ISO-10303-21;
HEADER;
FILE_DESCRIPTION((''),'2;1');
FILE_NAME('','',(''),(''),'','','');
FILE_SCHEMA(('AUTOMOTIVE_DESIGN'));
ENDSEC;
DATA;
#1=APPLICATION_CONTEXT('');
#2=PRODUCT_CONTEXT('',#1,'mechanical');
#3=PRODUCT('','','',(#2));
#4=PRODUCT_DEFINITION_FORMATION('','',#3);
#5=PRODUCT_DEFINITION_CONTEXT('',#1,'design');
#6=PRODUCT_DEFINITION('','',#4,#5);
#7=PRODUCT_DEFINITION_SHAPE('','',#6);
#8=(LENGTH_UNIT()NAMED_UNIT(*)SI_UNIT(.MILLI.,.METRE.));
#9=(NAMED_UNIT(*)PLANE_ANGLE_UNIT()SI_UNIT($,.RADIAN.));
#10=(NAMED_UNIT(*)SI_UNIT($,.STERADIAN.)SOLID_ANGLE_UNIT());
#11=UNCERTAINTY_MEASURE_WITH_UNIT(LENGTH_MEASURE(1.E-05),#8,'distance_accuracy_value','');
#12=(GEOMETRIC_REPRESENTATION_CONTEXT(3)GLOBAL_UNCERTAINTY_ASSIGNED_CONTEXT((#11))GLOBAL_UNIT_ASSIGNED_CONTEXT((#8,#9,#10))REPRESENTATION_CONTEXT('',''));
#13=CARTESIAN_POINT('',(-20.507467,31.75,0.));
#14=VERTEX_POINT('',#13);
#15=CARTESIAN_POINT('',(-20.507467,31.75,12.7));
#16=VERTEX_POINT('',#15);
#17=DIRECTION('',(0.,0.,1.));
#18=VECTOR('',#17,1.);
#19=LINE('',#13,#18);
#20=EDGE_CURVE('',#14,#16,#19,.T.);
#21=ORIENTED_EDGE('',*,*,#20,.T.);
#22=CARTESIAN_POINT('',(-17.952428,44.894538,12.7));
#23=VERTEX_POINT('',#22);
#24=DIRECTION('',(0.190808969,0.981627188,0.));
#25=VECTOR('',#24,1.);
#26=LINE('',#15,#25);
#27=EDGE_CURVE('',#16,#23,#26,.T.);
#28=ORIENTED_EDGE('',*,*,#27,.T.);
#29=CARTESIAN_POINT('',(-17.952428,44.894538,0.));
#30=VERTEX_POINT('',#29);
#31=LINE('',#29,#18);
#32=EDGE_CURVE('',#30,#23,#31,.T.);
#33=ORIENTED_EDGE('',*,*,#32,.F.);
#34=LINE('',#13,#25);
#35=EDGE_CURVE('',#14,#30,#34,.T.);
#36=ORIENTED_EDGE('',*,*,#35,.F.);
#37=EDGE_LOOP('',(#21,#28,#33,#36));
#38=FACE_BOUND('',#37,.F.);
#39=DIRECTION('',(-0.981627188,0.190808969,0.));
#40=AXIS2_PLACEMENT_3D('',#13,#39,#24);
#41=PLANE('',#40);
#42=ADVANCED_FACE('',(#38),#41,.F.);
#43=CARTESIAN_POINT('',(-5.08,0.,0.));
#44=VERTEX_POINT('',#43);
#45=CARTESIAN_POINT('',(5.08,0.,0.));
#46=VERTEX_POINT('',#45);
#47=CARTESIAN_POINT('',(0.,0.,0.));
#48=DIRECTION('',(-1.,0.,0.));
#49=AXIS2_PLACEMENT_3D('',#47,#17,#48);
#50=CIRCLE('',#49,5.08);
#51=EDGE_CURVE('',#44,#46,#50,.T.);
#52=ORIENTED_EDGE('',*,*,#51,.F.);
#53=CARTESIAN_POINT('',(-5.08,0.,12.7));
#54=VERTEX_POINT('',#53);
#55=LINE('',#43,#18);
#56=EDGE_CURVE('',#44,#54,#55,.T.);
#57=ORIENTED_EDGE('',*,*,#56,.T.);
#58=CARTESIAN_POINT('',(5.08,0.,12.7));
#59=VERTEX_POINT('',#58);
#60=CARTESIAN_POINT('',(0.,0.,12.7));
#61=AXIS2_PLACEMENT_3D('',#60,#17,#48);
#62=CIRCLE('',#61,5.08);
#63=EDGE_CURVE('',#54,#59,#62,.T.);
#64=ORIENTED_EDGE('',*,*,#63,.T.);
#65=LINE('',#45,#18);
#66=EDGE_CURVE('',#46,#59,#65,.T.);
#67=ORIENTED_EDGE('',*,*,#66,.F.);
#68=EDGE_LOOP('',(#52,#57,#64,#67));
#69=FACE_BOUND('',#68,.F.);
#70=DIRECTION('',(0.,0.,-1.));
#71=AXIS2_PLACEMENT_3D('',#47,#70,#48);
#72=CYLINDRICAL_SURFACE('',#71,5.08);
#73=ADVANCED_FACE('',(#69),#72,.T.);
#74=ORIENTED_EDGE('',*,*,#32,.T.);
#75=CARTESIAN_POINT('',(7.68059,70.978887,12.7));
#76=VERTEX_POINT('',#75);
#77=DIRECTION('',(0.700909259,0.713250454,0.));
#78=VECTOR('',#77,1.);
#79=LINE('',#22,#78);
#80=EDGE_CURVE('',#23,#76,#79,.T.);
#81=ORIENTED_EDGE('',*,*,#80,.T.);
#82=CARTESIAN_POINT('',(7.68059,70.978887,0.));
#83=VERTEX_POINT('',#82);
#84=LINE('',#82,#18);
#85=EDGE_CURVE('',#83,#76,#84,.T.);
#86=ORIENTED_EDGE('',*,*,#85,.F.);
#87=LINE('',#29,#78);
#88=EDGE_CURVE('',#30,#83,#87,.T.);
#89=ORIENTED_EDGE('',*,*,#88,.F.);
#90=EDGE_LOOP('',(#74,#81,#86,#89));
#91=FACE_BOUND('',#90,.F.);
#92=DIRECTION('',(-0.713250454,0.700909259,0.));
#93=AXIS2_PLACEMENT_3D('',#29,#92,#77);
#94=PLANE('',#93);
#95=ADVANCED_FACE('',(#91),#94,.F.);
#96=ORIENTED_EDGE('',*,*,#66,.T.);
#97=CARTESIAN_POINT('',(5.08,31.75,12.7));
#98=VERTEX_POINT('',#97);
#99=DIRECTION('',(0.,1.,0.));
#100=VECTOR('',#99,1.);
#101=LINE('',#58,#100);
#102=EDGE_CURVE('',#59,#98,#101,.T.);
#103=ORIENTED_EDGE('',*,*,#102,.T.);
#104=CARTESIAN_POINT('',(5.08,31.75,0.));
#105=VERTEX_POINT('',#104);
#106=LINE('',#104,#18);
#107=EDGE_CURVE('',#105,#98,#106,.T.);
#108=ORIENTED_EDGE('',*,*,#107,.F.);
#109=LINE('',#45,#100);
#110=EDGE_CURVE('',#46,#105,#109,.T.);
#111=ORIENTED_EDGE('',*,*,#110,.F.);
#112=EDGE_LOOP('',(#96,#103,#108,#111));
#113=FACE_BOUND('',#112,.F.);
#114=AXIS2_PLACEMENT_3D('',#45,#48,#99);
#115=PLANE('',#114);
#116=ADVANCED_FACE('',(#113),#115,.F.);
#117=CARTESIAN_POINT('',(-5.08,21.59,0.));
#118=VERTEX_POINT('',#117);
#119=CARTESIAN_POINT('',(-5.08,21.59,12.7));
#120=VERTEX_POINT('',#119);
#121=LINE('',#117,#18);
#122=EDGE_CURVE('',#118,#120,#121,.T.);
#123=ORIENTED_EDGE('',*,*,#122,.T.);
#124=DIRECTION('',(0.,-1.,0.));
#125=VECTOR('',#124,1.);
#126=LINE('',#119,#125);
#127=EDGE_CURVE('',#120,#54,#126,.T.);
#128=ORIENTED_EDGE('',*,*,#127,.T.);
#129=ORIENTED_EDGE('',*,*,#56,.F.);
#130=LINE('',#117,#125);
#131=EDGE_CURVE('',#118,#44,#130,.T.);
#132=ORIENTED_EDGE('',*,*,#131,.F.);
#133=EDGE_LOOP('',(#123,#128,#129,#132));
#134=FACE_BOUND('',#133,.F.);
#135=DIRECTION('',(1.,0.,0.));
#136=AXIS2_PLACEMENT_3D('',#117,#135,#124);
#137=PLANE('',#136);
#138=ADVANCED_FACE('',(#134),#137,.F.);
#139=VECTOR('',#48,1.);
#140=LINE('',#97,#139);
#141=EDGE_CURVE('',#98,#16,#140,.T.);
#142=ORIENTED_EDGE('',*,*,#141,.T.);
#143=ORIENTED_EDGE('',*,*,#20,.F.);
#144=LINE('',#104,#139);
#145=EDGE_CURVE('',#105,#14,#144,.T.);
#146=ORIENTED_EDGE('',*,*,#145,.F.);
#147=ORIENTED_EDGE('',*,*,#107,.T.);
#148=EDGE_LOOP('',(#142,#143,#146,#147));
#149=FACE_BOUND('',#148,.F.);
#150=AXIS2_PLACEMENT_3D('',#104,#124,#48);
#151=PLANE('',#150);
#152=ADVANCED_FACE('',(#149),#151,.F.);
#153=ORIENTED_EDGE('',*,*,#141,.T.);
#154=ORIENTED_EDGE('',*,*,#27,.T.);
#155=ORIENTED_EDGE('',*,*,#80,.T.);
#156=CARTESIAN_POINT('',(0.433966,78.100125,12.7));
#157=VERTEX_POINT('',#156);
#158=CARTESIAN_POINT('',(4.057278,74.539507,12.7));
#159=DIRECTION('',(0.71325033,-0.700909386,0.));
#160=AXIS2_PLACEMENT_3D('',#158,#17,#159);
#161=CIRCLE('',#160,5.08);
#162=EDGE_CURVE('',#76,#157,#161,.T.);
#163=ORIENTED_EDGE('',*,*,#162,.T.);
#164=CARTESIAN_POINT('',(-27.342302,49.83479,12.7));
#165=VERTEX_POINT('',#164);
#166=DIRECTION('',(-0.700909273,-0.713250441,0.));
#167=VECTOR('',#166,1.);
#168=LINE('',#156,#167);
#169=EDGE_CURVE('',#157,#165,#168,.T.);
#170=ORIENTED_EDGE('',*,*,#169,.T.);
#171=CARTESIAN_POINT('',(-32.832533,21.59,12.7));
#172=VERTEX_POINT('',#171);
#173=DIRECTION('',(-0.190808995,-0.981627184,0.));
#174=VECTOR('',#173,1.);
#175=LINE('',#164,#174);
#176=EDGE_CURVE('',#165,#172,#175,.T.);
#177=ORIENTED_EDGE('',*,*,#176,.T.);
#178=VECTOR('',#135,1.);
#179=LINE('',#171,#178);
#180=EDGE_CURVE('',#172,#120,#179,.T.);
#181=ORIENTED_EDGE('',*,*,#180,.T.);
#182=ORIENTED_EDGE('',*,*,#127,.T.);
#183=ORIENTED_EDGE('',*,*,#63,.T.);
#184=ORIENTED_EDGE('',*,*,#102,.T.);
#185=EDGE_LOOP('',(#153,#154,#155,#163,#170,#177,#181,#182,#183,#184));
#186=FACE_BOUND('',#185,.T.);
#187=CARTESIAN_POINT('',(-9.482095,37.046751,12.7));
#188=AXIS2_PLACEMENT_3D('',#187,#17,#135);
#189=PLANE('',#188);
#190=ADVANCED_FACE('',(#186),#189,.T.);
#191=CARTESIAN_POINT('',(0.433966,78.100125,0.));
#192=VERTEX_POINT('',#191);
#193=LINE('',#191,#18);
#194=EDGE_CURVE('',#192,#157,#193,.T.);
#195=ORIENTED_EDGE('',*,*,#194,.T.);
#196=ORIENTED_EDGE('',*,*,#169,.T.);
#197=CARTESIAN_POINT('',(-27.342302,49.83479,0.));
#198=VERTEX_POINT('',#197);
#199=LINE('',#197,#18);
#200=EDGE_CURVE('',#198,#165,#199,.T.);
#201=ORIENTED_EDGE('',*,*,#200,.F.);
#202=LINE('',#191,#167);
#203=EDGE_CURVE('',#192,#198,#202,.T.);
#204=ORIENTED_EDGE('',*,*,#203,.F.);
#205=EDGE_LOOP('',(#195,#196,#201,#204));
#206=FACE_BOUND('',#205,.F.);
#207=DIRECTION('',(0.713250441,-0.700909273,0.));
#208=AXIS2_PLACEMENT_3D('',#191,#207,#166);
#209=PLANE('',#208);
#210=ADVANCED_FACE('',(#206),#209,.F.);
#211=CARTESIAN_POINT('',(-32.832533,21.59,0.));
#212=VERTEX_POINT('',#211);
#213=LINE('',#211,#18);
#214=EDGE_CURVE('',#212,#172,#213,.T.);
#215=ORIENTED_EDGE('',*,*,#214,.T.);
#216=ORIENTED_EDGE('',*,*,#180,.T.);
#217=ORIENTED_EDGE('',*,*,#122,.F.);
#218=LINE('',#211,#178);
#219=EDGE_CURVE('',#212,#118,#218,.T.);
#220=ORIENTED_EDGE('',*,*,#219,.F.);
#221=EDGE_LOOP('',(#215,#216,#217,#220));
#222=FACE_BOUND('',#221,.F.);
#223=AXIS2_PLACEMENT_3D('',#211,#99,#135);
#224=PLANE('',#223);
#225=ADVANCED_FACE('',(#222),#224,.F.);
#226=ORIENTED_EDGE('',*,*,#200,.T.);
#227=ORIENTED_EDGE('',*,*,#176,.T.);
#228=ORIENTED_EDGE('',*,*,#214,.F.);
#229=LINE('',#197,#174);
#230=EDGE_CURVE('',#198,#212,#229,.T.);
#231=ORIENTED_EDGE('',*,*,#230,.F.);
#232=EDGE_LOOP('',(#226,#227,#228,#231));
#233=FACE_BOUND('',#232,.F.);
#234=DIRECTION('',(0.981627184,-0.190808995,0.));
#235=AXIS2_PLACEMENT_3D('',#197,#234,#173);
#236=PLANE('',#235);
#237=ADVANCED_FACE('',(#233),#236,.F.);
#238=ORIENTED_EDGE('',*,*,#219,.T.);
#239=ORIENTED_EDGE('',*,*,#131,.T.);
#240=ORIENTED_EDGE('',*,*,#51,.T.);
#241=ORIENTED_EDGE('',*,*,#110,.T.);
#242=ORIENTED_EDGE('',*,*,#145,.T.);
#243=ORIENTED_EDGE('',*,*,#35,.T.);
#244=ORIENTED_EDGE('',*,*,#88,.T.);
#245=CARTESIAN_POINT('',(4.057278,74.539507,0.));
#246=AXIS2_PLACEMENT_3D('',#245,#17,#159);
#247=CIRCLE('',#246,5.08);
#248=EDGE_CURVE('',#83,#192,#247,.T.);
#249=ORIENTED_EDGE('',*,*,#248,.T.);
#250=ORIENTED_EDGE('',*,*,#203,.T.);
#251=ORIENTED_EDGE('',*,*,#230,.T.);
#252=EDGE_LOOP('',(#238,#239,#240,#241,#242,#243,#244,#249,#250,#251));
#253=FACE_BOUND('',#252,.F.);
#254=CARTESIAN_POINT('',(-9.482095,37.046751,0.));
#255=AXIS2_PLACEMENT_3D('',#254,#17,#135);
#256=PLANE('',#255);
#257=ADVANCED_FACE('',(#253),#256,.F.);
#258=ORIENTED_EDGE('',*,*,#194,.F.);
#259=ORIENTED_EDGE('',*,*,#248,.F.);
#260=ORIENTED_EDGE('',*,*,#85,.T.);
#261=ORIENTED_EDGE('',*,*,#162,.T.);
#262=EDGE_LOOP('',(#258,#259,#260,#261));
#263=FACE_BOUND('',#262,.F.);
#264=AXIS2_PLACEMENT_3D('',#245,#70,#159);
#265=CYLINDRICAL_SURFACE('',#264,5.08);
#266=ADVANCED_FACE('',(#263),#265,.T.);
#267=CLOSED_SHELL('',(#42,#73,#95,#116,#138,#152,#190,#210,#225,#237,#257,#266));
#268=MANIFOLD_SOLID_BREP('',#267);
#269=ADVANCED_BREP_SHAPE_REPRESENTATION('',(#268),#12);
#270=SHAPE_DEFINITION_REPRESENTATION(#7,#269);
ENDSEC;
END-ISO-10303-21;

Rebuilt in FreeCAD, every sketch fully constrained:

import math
import FreeCAD as App
import Part
import Sketcher

V = App.Vector
Q = App.Units.Quantity

doc = App.newDocument("Part")
body = doc.addObject("PartDesign::Body", "Body")

sketch1 = body.newObject("Sketcher::SketchObject", "Sketch")
sketch1.AttachmentSupport = (doc.getObject("XY_Plane"), [""])
sketch1.MapMode = "FlatFace"
sketch1.addGeometry(Part.LineSegment(V(-21, 32, 0), V(-18, 45, 0)), False)
sketch1.addGeometry(Part.LineSegment(V(-18, 45, 0), V(8, 71, 0)), False)
sketch1.addGeometry(Part.ArcOfCircle(Part.Circle(V(4, 75, 0), V(0, 0, 1), 5), math.radians(-45), math.radians(136)), False)
sketch1.addGeometry(Part.LineSegment(V(0, 78, 0), V(-27, 50, 0)), False)
sketch1.addGeometry(Part.LineSegment(V(-27, 50, 0), V(-33, 22, 0)), False)
sketch1.addGeometry(Part.LineSegment(V(-33, 22, 0), V(-5, 22, 0)), False)
sketch1.addGeometry(Part.LineSegment(V(-5, 22, 0), V(-5, 0, 0)), False)
sketch1.addGeometry(Part.ArcOfCircle(Part.Circle(V(0, 0, 0), V(0, 0, 1), 5), math.radians(180), math.radians(360)), False)
sketch1.addGeometry(Part.LineSegment(V(5, 0, 0), V(5, 32, 0)), False)
sketch1.addGeometry(Part.LineSegment(V(5, 32, 0), V(-21, 32, 0)), False)
sketch1.addConstraint(Sketcher.Constraint("Coincident", 0, 2, 1, 1))
sketch1.addConstraint(Sketcher.Constraint("Tangent", 1, 2, 2, 1))
sketch1.addConstraint(Sketcher.Constraint("Tangent", 2, 2, 3, 1))
sketch1.addConstraint(Sketcher.Constraint("Coincident", 3, 2, 4, 1))
sketch1.addConstraint(Sketcher.Constraint("Coincident", 4, 2, 5, 1))
sketch1.addConstraint(Sketcher.Constraint("Coincident", 5, 2, 6, 1))
sketch1.addConstraint(Sketcher.Constraint("Tangent", 6, 2, 7, 1))
sketch1.addConstraint(Sketcher.Constraint("Tangent", 7, 2, 8, 1))
sketch1.addConstraint(Sketcher.Constraint("Coincident", 8, 2, 9, 1))
sketch1.addConstraint(Sketcher.Constraint("Coincident", 9, 2, 0, 1))
sketch1.addConstraint(Sketcher.Constraint("Horizontal", 5))
sketch1.addConstraint(Sketcher.Constraint("Vertical", 6))
sketch1.addConstraint(Sketcher.Constraint("Vertical", 8))
sketch1.addConstraint(Sketcher.Constraint("Horizontal", 9))
sketch1.addConstraint(Sketcher.Constraint("Coincident", 7, 3, -1, 1))
sketch1.addConstraint(Sketcher.Constraint("Equal", 2, 7))
sketch1.addConstraint(Sketcher.Constraint("Parallel", 1, 3))
sketch1.addConstraint(Sketcher.Constraint("Parallel", 0, 4))
sketch1.addConstraint(Sketcher.Constraint("Radius", 2, Q("0.2 in")))
sketch1.addConstraint(Sketcher.Constraint("Angle", 0, Q("79.000002 deg")))
sketch1.addConstraint(Sketcher.Constraint("DistanceY", 6, 2, 6, 1, Q("0.85 in")))
sketch1.addConstraint(Sketcher.Constraint("DistanceY", 8, 1, 8, 2, Q("1.25 in")))
sketch1.addConstraint(Sketcher.Constraint("Angle", 1, Q("45.5 deg")))
sketch1.addConstraint(Sketcher.Constraint("DistanceX", 3, 2, -1, 1, 27.342302))
sketch1.addConstraint(Sketcher.Constraint("Distance", 0, 13.39056))
sketch1.addConstraint(Sketcher.Constraint("Distance", 4, 28.773439))
sketch1.addConstraint(Sketcher.Constraint("DistanceX", -1, 1, 2, 3, 4.057278))
pad1 = body.newObject("PartDesign::Pad", "Pad")
pad1.Profile = sketch1
pad1.Length = Q("0.5 in")

doc.recompute()
